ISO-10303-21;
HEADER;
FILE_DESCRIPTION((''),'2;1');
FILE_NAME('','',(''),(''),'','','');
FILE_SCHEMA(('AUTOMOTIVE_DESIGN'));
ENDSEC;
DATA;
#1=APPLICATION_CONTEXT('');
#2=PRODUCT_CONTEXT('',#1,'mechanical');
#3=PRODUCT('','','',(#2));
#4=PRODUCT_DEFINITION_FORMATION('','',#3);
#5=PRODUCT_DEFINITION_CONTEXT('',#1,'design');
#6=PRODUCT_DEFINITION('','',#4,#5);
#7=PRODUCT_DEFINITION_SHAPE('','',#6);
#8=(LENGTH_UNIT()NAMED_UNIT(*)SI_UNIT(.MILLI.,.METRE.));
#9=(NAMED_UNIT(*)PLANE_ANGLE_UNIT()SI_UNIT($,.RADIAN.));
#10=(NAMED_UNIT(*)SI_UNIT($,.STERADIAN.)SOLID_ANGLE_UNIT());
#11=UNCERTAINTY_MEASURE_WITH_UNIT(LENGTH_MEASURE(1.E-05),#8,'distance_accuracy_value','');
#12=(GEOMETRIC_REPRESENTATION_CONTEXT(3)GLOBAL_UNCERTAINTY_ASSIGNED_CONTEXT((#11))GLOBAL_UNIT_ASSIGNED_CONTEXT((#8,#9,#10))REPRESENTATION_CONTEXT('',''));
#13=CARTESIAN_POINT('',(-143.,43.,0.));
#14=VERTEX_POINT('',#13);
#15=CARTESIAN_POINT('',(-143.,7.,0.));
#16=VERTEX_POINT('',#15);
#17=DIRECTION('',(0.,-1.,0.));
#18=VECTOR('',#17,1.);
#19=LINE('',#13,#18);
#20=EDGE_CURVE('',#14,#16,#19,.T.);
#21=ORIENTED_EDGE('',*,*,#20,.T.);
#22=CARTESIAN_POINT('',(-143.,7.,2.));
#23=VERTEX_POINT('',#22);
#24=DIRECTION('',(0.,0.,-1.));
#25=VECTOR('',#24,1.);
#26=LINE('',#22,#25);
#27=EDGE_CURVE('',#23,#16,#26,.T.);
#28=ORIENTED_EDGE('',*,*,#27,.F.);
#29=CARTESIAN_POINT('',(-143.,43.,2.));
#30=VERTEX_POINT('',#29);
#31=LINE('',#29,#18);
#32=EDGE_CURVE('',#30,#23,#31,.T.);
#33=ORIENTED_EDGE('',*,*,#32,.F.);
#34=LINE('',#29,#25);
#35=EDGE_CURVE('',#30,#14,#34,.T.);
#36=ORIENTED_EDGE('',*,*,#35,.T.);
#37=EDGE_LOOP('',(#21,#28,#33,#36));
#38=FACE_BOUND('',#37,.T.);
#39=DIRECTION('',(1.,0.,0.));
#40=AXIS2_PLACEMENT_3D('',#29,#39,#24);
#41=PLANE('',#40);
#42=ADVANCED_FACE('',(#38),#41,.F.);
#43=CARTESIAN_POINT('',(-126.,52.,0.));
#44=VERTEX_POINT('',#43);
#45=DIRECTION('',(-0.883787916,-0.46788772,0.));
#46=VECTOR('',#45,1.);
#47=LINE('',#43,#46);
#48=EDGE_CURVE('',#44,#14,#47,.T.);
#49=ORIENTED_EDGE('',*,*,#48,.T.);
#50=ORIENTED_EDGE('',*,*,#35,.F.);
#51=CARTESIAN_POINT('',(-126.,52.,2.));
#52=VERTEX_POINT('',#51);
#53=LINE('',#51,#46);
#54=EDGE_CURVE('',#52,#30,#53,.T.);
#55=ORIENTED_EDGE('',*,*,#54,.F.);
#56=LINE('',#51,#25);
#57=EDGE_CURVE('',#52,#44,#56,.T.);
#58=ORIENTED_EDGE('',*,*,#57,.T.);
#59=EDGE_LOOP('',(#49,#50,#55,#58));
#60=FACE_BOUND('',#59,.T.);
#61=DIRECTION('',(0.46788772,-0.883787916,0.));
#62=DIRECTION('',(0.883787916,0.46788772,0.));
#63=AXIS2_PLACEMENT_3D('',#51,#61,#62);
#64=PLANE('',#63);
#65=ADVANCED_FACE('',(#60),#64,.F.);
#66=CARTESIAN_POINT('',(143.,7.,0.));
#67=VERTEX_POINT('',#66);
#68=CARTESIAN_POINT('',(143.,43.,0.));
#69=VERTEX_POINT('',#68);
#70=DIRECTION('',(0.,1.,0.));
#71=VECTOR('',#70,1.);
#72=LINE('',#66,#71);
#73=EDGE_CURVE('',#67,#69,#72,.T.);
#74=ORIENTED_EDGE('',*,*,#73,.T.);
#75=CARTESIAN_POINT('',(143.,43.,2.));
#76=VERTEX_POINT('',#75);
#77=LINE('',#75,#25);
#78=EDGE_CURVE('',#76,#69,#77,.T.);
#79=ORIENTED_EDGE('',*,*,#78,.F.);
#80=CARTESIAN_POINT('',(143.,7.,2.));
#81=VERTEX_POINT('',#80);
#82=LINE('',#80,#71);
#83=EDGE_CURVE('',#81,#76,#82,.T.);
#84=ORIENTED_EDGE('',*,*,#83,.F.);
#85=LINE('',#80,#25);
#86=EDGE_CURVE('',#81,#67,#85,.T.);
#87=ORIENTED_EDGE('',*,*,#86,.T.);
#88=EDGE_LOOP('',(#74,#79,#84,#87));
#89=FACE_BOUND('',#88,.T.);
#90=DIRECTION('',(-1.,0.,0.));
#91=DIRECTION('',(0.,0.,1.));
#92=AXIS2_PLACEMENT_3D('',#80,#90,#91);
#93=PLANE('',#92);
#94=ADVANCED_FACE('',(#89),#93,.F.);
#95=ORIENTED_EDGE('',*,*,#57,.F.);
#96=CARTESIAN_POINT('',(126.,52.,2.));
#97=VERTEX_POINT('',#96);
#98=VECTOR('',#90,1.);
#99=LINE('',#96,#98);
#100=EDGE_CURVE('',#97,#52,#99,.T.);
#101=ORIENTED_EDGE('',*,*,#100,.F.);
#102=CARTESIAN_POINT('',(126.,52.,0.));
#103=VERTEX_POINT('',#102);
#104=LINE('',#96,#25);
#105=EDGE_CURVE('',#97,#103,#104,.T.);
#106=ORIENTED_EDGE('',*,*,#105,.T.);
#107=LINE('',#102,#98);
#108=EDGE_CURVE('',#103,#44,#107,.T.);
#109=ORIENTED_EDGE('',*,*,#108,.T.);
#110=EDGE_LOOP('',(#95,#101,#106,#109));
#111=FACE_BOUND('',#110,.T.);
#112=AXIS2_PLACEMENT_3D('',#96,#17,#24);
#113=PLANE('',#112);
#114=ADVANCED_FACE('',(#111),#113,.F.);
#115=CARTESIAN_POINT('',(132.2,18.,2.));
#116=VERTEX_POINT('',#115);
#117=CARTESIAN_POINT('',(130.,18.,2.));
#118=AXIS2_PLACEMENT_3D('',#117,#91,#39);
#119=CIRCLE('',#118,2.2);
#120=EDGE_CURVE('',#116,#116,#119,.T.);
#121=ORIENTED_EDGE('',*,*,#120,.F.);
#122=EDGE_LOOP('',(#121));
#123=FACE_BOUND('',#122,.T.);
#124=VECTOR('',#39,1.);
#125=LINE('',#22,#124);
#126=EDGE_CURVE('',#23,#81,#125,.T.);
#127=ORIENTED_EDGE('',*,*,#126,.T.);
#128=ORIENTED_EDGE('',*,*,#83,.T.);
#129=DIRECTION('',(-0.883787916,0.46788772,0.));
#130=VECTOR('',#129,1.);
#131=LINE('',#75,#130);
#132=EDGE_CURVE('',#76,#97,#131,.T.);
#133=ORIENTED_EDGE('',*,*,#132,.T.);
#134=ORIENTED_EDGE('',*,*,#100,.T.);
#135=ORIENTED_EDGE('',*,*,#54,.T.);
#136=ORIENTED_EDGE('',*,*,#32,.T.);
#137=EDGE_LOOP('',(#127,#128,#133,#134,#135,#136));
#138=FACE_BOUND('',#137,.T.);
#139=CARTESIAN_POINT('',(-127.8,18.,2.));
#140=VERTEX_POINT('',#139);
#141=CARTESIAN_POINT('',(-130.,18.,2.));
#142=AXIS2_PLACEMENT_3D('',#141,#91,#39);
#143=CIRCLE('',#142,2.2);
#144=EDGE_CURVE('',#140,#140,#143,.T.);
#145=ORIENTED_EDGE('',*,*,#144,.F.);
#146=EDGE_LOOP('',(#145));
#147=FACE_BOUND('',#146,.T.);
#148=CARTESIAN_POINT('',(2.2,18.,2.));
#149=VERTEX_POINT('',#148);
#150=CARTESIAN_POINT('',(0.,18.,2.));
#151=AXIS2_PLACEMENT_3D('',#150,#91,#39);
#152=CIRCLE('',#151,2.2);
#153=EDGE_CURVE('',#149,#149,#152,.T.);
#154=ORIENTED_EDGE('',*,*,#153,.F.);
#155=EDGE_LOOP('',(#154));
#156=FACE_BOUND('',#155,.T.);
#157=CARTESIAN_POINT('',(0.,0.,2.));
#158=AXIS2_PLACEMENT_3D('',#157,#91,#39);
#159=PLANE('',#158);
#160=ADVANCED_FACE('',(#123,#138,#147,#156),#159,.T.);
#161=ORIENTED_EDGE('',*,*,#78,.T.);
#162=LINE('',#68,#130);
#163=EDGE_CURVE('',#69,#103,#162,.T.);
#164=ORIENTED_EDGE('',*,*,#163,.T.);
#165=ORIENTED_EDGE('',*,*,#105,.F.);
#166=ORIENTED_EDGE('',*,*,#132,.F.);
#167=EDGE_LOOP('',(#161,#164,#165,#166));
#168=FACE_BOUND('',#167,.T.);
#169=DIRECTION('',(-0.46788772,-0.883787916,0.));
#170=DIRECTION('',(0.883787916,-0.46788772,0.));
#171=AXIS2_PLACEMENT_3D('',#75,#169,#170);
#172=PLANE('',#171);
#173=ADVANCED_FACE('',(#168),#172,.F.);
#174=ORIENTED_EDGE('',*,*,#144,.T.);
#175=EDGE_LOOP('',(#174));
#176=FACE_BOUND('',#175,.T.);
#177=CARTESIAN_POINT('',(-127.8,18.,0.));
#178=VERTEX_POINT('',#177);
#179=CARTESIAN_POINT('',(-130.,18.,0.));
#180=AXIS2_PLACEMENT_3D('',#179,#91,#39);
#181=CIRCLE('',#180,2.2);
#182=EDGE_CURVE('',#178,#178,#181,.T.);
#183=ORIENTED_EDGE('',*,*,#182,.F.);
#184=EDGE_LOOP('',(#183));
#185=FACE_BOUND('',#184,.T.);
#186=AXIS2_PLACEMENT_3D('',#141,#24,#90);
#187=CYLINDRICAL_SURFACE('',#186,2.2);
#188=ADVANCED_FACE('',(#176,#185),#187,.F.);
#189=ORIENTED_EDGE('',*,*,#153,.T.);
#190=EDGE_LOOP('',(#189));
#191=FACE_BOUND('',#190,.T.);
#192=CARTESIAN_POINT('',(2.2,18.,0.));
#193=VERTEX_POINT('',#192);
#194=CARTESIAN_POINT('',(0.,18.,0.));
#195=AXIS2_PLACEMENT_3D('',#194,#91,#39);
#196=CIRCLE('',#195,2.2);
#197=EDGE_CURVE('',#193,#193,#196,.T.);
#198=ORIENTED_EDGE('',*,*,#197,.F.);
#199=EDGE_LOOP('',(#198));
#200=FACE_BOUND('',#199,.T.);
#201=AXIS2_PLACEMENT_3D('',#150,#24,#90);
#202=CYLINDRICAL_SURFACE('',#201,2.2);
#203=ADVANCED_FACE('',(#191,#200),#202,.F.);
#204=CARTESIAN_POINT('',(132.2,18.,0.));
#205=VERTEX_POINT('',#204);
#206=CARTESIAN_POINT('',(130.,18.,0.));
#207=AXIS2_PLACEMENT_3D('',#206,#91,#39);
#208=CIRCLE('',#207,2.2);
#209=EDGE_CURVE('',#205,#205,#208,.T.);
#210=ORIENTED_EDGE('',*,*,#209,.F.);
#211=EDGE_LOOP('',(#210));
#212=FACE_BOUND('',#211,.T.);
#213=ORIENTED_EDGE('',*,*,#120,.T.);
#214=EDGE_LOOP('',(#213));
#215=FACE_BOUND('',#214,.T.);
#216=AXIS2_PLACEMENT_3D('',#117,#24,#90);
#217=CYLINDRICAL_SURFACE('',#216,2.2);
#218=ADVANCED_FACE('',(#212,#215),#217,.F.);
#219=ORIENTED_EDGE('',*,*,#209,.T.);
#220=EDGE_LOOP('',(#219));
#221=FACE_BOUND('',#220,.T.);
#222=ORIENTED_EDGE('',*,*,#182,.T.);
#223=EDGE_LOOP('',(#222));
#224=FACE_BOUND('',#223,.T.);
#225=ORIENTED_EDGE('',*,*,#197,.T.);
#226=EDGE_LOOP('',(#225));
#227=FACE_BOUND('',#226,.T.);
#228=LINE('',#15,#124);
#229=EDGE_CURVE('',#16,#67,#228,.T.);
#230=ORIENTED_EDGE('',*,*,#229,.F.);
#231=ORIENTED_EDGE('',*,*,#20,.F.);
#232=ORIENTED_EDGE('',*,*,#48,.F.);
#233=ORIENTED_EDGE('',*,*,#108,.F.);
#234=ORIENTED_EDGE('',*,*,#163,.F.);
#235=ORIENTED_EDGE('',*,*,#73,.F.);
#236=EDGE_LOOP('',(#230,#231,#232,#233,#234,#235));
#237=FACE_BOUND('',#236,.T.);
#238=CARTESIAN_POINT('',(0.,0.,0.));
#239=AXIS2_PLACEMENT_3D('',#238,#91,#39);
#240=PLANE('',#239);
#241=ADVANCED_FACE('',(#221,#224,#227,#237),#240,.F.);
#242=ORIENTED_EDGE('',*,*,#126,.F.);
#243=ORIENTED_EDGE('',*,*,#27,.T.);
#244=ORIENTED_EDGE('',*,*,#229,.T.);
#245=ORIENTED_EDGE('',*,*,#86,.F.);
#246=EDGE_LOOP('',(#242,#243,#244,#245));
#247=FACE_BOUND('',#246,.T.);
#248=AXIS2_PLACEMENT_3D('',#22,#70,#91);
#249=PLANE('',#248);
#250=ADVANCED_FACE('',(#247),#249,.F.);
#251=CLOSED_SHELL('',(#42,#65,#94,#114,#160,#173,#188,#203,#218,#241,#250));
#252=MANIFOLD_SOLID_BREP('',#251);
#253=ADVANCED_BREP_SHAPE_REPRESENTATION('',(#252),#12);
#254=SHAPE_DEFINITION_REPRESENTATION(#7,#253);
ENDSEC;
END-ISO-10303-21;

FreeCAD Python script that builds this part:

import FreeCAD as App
import Part
import Sketcher

V = App.Vector
Q = App.Units.Quantity

doc = App.newDocument("Part")
body = doc.addObject("PartDesign::Body", "Body")

# Sketch on XY plane
sketch1 = body.newObject("Sketcher::SketchObject", "Sketch")
sketch1.AttachmentSupport = (doc.getObject("XY_Plane"), [""])
sketch1.MapMode = "FlatFace"
sketch1.addGeometry([
    Part.LineSegment(V(-143, 7, 0), V(143, 7, 0)),  # 0
    Part.LineSegment(V(143, 7, 0), V(143, 43, 0)),  # 1
    Part.LineSegment(V(143, 43, 0), V(126, 52, 0)),  # 2
    Part.LineSegment(V(126, 52, 0), V(-126, 52, 0)),  # 3
    Part.LineSegment(V(-126, 52, 0), V(-143, 43, 0)),  # 4
    Part.LineSegment(V(-143, 43, 0), V(-143, 7, 0)),  # 5
    Part.Circle(V(-130, 18, 0), V(0, 0, 1), 2.2),  # 6
    Part.Circle(V(0, 18, 0), V(0, 0, 1), 2.2),  # 7
    Part.Circle(V(130, 18, 0), V(0, 0, 1), 2.2),  # 8
], False)
sketch1.addConstraint([
    Sketcher.Constraint("Coincident", 0, 2, 1, 1),
    Sketcher.Constraint("Coincident", 1, 2, 2, 1),
    Sketcher.Constraint("Coincident", 2, 2, 3, 1),
    Sketcher.Constraint("Coincident", 3, 2, 4, 1),
    Sketcher.Constraint("Coincident", 4, 2, 5, 1),
    Sketcher.Constraint("Coincident", 5, 2, 0, 1),
    Sketcher.Constraint("Horizontal", 0),
    Sketcher.Constraint("Vertical", 1),
    Sketcher.Constraint("Horizontal", 3),
    Sketcher.Constraint("Vertical", 5),
    Sketcher.Constraint("Equal", 6, 7),
    Sketcher.Constraint("Equal", 7, 8),
    Sketcher.Constraint("Symmetric", 6, 3, 8, 3, -2),
    Sketcher.Constraint("Symmetric", 1, 2, 4, 2, -2),
    Sketcher.Constraint("PointOnObject", 7, 3, -2),
    Sketcher.Constraint("Horizontal", 6, 3, 7, 3),
    Sketcher.Constraint("Equal", 2, 4),
    Sketcher.Constraint("Diameter", 6, Q("4.4 mm")),
    Sketcher.Constraint("DistanceX", 0, 1, 0, 2, Q("286 mm")),
    Sketcher.Constraint("DistanceX", 3, 2, 3, 1, Q("252 mm")),
    Sketcher.Constraint("DistanceY", 1, 1, 1, 2, Q("36 mm")),
    Sketcher.Constraint("DistanceX", 6, 3, -1, 1, Q("130 mm")),
    Sketcher.Constraint("DistanceY", -1, 1, 6, 3, Q("18 mm")),
    Sketcher.Constraint("DistanceY", -1, 1, 0, 2, Q("7 mm")),
    Sketcher.Constraint("DistanceY", -1, 1, 2, 2, Q("52 mm")),
])
pad1 = body.newObject("PartDesign::Pad", "Pad")
pad1.Profile = sketch1
pad1.Length = 2

doc.recompute()
